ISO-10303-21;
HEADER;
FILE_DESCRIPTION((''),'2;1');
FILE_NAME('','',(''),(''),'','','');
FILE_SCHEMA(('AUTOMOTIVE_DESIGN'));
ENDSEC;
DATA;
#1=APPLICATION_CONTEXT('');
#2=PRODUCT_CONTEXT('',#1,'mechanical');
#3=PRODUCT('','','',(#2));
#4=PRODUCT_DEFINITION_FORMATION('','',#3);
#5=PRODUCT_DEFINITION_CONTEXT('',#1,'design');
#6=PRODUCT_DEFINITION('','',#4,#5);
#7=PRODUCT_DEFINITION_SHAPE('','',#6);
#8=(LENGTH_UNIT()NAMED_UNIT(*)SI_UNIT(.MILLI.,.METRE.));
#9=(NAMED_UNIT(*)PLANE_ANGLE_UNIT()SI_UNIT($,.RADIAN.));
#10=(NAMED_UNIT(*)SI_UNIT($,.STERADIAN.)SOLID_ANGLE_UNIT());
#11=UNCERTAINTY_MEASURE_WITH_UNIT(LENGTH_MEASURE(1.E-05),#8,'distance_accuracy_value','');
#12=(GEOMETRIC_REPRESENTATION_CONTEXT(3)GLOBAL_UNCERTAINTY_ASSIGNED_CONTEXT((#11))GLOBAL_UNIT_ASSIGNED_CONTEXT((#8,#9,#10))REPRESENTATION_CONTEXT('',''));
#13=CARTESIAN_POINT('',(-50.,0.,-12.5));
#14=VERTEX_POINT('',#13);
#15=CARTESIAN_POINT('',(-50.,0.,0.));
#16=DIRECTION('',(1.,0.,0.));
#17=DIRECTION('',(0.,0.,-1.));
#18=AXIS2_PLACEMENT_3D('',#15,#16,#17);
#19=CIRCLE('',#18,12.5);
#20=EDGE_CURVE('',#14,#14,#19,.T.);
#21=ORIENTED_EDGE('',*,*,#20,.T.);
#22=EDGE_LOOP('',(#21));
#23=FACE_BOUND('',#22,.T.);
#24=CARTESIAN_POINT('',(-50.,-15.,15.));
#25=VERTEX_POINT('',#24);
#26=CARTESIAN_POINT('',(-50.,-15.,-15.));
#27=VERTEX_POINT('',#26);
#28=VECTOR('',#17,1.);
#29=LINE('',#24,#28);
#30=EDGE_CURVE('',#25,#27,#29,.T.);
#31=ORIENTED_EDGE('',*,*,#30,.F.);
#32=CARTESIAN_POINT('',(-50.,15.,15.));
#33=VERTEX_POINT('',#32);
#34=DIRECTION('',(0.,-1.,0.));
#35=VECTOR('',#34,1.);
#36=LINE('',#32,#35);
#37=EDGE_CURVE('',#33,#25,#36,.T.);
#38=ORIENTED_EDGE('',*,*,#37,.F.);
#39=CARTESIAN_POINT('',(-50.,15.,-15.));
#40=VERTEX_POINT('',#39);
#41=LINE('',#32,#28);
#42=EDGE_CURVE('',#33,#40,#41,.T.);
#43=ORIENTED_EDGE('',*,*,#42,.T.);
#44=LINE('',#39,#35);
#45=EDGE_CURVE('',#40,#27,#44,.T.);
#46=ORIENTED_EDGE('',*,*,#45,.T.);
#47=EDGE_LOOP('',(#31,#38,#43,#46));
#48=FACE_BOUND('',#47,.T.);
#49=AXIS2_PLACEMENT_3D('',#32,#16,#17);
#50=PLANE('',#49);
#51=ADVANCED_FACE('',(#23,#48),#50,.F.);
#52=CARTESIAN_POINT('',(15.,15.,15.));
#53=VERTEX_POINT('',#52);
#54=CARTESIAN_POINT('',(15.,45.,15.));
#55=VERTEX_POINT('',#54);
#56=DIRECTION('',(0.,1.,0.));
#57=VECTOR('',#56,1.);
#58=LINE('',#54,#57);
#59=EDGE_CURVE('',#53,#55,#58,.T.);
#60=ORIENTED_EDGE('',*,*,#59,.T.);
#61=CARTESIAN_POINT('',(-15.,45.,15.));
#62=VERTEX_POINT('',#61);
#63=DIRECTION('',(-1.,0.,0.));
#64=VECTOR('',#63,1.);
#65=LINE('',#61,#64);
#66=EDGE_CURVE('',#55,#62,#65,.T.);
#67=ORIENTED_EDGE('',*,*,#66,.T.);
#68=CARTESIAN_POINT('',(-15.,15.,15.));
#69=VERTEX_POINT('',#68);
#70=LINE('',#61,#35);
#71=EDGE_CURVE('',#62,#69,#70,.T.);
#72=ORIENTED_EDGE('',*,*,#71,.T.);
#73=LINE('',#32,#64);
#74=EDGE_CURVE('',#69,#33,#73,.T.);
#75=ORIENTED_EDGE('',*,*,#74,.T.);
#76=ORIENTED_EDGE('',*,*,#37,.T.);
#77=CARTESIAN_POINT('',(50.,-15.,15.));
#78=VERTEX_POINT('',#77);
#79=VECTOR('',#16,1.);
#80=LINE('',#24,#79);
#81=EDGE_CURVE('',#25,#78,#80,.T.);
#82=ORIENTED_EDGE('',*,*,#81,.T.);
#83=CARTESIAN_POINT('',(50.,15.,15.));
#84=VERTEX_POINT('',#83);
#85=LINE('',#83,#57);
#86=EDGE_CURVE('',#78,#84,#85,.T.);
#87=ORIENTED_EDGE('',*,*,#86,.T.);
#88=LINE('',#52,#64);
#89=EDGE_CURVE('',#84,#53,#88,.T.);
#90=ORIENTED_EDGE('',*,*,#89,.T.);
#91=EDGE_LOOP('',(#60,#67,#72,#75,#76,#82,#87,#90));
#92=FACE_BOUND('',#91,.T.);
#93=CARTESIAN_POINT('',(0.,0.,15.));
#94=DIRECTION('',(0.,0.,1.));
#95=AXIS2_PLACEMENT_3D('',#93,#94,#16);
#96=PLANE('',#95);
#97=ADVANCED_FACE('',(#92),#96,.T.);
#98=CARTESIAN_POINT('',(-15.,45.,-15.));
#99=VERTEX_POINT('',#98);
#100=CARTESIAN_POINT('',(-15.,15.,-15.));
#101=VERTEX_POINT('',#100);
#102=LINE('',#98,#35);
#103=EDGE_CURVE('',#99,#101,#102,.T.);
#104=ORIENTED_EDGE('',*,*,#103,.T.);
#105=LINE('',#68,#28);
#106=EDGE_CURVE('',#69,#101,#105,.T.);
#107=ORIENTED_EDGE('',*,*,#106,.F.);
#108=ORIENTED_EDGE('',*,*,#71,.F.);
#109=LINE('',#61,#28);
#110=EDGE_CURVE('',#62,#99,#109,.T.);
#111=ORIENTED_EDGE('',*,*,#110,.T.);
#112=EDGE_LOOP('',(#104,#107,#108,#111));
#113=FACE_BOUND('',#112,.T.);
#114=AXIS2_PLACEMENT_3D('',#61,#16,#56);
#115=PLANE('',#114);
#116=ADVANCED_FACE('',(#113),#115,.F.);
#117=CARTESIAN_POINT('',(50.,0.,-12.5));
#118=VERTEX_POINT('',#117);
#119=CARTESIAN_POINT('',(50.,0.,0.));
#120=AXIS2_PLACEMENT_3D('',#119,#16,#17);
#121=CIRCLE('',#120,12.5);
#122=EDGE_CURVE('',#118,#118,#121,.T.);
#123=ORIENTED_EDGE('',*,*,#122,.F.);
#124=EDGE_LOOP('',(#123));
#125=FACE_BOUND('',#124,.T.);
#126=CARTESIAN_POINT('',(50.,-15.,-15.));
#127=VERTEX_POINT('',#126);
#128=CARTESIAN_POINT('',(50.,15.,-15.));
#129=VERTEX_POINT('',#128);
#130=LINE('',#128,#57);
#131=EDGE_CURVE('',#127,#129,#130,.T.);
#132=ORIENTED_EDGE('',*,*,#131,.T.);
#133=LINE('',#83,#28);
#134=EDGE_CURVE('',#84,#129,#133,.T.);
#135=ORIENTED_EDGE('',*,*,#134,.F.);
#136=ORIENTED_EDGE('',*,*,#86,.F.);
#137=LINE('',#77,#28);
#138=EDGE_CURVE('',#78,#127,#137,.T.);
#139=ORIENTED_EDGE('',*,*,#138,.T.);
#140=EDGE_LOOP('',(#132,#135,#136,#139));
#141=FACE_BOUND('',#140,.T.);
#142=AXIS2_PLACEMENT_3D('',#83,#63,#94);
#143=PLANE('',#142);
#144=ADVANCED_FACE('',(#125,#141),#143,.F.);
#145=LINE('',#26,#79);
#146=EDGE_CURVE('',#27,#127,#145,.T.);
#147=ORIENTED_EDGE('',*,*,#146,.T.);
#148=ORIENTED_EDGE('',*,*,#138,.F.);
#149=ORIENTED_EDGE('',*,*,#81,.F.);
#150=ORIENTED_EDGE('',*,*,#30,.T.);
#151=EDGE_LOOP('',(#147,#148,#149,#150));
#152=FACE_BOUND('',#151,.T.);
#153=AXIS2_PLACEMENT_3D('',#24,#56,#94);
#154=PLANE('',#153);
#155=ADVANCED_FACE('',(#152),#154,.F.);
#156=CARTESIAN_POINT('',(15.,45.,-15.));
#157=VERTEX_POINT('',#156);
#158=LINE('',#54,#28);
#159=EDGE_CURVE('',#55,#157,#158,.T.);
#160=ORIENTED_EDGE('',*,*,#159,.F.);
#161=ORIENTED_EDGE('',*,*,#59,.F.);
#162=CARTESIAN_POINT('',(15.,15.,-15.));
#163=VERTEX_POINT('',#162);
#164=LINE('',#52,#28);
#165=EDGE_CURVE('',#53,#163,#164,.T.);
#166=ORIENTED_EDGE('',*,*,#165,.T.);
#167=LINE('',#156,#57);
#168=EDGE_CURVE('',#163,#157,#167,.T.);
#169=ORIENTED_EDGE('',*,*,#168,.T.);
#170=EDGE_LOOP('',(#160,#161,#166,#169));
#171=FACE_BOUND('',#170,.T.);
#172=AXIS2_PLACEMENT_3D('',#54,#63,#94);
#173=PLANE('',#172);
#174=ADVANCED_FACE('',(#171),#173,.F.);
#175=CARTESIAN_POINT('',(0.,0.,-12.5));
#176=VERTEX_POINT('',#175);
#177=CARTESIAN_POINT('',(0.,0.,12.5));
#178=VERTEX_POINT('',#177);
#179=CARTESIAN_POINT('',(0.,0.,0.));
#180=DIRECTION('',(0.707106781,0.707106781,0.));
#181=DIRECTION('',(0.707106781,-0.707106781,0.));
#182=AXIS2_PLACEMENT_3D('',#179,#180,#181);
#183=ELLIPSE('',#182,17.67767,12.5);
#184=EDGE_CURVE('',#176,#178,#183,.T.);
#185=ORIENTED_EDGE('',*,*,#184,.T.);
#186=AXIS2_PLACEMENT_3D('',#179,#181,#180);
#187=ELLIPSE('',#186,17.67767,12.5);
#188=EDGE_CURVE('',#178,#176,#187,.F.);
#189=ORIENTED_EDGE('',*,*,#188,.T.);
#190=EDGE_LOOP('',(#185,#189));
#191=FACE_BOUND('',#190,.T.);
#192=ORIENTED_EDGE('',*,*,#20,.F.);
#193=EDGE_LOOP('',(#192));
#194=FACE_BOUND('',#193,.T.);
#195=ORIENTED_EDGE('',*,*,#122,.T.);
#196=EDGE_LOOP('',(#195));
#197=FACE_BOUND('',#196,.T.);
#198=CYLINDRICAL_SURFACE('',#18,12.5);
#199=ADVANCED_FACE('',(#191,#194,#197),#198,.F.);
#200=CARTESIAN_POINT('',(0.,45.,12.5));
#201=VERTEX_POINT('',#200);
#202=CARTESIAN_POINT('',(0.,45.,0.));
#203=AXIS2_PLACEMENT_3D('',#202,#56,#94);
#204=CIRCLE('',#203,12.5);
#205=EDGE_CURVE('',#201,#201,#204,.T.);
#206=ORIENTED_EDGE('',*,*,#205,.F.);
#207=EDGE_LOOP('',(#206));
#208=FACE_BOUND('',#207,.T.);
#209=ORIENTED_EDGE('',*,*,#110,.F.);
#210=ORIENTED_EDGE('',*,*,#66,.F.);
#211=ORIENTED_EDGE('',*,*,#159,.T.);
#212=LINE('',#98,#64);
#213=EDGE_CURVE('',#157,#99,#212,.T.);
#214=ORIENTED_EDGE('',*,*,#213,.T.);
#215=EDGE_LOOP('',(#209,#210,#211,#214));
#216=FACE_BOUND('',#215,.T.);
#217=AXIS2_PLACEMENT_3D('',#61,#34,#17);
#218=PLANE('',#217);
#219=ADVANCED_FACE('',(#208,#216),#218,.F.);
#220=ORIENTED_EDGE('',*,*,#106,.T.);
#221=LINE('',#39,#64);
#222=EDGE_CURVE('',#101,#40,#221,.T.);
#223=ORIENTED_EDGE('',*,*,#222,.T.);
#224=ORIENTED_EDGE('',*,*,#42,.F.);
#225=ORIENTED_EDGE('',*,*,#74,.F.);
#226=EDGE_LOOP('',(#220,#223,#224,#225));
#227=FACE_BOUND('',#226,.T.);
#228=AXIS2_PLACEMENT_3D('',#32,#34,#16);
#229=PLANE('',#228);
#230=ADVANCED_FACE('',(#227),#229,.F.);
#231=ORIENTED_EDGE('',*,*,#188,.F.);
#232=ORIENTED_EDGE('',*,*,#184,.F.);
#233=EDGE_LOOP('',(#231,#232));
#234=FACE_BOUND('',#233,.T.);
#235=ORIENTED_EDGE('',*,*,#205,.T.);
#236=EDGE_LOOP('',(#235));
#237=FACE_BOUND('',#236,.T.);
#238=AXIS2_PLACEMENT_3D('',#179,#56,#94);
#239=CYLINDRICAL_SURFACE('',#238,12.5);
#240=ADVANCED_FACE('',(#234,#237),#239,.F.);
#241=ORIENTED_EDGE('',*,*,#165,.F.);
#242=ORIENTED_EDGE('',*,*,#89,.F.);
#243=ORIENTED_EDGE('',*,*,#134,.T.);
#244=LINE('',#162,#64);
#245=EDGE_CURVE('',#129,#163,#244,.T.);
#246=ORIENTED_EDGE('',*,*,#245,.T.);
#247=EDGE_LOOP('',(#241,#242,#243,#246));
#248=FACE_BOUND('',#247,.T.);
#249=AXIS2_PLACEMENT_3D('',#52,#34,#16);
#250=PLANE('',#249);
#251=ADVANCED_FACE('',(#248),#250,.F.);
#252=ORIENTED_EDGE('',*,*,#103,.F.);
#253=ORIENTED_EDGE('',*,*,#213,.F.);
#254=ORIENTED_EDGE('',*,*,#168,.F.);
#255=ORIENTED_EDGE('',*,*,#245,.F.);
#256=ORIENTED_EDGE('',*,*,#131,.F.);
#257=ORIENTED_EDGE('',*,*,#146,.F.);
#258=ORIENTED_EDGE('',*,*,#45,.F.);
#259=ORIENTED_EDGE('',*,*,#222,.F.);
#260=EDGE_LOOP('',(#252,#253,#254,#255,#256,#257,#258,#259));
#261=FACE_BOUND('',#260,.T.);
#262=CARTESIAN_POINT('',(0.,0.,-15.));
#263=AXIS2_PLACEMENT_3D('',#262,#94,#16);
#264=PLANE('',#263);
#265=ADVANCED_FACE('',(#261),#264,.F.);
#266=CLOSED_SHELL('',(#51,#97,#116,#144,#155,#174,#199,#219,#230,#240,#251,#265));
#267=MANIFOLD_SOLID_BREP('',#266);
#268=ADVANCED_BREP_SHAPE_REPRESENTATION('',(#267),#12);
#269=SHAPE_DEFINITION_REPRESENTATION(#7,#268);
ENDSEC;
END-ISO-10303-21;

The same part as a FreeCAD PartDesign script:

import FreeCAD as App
import Part
import Sketcher
from FreeCAD import Vector


def add_polygon(sketch, points):
    """Adds a closed chain of lines whose ends are joined by coincident constraints."""
    first, n = sketch.GeometryCount, len(points)
    for a, b in zip(points, points[1:] + points[:1]):
        sketch.addGeometry(Part.LineSegment(App.Vector(*a, 0), App.Vector(*b, 0)), False)
    for i in range(n):
        sketch.addConstraint(Sketcher.Constraint("Coincident", first + i, 2, first + (i + 1) % n, 1))

doc = App.newDocument("Part")
params = doc.addObject("Spreadsheet::Sheet", "Params")
for row, (alias, value) in enumerate([
    ("sketch1_width", "35 mm"),
    ("sketch1_width2", "30 mm"),
    ("pad1_length", "30 mm"),
    ("sketch2_diameter", "25 mm"),
    ("pocket1_length", "100 mm"),
    ("sketch3_diameter", "25 mm"),
    ("pocket2_length", "45 mm"),
], start=1):
    params.set(f"A{row}", alias)
    params.set(f"B{row}", "=" + value)
    params.setAlias(f"B{row}", alias)

body = doc.addObject("PartDesign::Body", "Body")

sketch1 = body.newObject("Sketcher::SketchObject", "Sketch")
sketch1.AttachmentSupport = (doc.getObject("XY_Plane"), [""])
sketch1.MapMode = "FlatFace"
add_polygon(sketch1, [(50, 15), (15, 15), (15, 45), (-15, 45), (-15, 15), (-50, 15), (-50, -15), (50, -15)])
sketch1.addConstraint(Sketcher.Constraint("Horizontal", 0))
sketch1.addConstraint(Sketcher.Constraint("Vertical", 1))
sketch1.addConstraint(Sketcher.Constraint("Horizontal", 2))
sketch1.addConstraint(Sketcher.Constraint("Vertical", 3))
sketch1.addConstraint(Sketcher.Constraint("Horizontal", 4))
sketch1.addConstraint(Sketcher.Constraint("Vertical", 5))
sketch1.addConstraint(Sketcher.Constraint("Horizontal", 6))
sketch1.addConstraint(Sketcher.Constraint("Vertical", 7))
sketch1.addConstraint(Sketcher.Constraint("Symmetric", 4, 2, 6, 2, -1, 1))
sketch1.addConstraint(Sketcher.Constraint("Symmetric", 0, 2, 3, 2, -2))
sketch1.addConstraint(Sketcher.Constraint("Equal", 2, 1))
sketch1.addConstraint(Sketcher.Constraint("Equal", 3, 5))
sketch1.addConstraint(Sketcher.Constraint("DistanceX", 0, 2, 0, 1, 35.0))
sketch1.addConstraint(Sketcher.Constraint("DistanceX", 2, 2, 2, 1, 30.0))
sketch1.setExpression("Constraints[20]", "Params.sketch1_width")
sketch1.setExpression("Constraints[21]", "Params.sketch1_width2")
pad1 = body.newObject("PartDesign::Pad", "Pad")
pad1.Profile = sketch1
pad1.setExpression("Length", "Params.pad1_length")
pad1.Midplane = True

sketch2 = body.newObject("Sketcher::SketchObject", "Sketch001")
sketch2.AttachmentSupport = (doc.getObject("YZ_Plane"), [""])
sketch2.MapMode = "FlatFace"
sketch2.AttachmentOffset = App.Placement(Vector(0, 0, 50), App.Rotation())
sketch2.addGeometry(Part.Circle(Vector(0, 0, 0), Vector(0, 0, 1), 12), False)
sketch2.addConstraint(Sketcher.Constraint("Coincident", 0, 3, -1, 1))
sketch2.addConstraint(Sketcher.Constraint("Diameter", 0, 25.0))
sketch2.setExpression("Constraints[1]", "Params.sketch2_diameter")
pocket1 = body.newObject("PartDesign::Pocket", "Pocket")
pocket1.Profile = sketch2
pocket1.setExpression("Length", "Params.pocket1_length")

sketch3 = body.newObject("Sketcher::SketchObject", "Sketch002")
sketch3.AttachmentSupport = (doc.getObject("XZ_Plane"), [""])
sketch3.MapMode = "FlatFace"
sketch3.AttachmentOffset = App.Placement(Vector(0, 0, -45), App.Rotation())
sketch3.addGeometry(Part.Circle(Vector(0, 0, 0), Vector(0, 0, 1), 12), False)
sketch3.addConstraint(Sketcher.Constraint("Coincident", 0, 3, -1, 1))
sketch3.addConstraint(Sketcher.Constraint("Diameter", 0, 25.0))
sketch3.setExpression("Constraints[1]", "Params.sketch3_diameter")
pocket2 = body.newObject("PartDesign::Pocket", "Pocket001")
pocket2.Profile = sketch3
pocket2.setExpression("Length", "Params.pocket2_length")
pocket2.Reversed = True

doc.recompute()
